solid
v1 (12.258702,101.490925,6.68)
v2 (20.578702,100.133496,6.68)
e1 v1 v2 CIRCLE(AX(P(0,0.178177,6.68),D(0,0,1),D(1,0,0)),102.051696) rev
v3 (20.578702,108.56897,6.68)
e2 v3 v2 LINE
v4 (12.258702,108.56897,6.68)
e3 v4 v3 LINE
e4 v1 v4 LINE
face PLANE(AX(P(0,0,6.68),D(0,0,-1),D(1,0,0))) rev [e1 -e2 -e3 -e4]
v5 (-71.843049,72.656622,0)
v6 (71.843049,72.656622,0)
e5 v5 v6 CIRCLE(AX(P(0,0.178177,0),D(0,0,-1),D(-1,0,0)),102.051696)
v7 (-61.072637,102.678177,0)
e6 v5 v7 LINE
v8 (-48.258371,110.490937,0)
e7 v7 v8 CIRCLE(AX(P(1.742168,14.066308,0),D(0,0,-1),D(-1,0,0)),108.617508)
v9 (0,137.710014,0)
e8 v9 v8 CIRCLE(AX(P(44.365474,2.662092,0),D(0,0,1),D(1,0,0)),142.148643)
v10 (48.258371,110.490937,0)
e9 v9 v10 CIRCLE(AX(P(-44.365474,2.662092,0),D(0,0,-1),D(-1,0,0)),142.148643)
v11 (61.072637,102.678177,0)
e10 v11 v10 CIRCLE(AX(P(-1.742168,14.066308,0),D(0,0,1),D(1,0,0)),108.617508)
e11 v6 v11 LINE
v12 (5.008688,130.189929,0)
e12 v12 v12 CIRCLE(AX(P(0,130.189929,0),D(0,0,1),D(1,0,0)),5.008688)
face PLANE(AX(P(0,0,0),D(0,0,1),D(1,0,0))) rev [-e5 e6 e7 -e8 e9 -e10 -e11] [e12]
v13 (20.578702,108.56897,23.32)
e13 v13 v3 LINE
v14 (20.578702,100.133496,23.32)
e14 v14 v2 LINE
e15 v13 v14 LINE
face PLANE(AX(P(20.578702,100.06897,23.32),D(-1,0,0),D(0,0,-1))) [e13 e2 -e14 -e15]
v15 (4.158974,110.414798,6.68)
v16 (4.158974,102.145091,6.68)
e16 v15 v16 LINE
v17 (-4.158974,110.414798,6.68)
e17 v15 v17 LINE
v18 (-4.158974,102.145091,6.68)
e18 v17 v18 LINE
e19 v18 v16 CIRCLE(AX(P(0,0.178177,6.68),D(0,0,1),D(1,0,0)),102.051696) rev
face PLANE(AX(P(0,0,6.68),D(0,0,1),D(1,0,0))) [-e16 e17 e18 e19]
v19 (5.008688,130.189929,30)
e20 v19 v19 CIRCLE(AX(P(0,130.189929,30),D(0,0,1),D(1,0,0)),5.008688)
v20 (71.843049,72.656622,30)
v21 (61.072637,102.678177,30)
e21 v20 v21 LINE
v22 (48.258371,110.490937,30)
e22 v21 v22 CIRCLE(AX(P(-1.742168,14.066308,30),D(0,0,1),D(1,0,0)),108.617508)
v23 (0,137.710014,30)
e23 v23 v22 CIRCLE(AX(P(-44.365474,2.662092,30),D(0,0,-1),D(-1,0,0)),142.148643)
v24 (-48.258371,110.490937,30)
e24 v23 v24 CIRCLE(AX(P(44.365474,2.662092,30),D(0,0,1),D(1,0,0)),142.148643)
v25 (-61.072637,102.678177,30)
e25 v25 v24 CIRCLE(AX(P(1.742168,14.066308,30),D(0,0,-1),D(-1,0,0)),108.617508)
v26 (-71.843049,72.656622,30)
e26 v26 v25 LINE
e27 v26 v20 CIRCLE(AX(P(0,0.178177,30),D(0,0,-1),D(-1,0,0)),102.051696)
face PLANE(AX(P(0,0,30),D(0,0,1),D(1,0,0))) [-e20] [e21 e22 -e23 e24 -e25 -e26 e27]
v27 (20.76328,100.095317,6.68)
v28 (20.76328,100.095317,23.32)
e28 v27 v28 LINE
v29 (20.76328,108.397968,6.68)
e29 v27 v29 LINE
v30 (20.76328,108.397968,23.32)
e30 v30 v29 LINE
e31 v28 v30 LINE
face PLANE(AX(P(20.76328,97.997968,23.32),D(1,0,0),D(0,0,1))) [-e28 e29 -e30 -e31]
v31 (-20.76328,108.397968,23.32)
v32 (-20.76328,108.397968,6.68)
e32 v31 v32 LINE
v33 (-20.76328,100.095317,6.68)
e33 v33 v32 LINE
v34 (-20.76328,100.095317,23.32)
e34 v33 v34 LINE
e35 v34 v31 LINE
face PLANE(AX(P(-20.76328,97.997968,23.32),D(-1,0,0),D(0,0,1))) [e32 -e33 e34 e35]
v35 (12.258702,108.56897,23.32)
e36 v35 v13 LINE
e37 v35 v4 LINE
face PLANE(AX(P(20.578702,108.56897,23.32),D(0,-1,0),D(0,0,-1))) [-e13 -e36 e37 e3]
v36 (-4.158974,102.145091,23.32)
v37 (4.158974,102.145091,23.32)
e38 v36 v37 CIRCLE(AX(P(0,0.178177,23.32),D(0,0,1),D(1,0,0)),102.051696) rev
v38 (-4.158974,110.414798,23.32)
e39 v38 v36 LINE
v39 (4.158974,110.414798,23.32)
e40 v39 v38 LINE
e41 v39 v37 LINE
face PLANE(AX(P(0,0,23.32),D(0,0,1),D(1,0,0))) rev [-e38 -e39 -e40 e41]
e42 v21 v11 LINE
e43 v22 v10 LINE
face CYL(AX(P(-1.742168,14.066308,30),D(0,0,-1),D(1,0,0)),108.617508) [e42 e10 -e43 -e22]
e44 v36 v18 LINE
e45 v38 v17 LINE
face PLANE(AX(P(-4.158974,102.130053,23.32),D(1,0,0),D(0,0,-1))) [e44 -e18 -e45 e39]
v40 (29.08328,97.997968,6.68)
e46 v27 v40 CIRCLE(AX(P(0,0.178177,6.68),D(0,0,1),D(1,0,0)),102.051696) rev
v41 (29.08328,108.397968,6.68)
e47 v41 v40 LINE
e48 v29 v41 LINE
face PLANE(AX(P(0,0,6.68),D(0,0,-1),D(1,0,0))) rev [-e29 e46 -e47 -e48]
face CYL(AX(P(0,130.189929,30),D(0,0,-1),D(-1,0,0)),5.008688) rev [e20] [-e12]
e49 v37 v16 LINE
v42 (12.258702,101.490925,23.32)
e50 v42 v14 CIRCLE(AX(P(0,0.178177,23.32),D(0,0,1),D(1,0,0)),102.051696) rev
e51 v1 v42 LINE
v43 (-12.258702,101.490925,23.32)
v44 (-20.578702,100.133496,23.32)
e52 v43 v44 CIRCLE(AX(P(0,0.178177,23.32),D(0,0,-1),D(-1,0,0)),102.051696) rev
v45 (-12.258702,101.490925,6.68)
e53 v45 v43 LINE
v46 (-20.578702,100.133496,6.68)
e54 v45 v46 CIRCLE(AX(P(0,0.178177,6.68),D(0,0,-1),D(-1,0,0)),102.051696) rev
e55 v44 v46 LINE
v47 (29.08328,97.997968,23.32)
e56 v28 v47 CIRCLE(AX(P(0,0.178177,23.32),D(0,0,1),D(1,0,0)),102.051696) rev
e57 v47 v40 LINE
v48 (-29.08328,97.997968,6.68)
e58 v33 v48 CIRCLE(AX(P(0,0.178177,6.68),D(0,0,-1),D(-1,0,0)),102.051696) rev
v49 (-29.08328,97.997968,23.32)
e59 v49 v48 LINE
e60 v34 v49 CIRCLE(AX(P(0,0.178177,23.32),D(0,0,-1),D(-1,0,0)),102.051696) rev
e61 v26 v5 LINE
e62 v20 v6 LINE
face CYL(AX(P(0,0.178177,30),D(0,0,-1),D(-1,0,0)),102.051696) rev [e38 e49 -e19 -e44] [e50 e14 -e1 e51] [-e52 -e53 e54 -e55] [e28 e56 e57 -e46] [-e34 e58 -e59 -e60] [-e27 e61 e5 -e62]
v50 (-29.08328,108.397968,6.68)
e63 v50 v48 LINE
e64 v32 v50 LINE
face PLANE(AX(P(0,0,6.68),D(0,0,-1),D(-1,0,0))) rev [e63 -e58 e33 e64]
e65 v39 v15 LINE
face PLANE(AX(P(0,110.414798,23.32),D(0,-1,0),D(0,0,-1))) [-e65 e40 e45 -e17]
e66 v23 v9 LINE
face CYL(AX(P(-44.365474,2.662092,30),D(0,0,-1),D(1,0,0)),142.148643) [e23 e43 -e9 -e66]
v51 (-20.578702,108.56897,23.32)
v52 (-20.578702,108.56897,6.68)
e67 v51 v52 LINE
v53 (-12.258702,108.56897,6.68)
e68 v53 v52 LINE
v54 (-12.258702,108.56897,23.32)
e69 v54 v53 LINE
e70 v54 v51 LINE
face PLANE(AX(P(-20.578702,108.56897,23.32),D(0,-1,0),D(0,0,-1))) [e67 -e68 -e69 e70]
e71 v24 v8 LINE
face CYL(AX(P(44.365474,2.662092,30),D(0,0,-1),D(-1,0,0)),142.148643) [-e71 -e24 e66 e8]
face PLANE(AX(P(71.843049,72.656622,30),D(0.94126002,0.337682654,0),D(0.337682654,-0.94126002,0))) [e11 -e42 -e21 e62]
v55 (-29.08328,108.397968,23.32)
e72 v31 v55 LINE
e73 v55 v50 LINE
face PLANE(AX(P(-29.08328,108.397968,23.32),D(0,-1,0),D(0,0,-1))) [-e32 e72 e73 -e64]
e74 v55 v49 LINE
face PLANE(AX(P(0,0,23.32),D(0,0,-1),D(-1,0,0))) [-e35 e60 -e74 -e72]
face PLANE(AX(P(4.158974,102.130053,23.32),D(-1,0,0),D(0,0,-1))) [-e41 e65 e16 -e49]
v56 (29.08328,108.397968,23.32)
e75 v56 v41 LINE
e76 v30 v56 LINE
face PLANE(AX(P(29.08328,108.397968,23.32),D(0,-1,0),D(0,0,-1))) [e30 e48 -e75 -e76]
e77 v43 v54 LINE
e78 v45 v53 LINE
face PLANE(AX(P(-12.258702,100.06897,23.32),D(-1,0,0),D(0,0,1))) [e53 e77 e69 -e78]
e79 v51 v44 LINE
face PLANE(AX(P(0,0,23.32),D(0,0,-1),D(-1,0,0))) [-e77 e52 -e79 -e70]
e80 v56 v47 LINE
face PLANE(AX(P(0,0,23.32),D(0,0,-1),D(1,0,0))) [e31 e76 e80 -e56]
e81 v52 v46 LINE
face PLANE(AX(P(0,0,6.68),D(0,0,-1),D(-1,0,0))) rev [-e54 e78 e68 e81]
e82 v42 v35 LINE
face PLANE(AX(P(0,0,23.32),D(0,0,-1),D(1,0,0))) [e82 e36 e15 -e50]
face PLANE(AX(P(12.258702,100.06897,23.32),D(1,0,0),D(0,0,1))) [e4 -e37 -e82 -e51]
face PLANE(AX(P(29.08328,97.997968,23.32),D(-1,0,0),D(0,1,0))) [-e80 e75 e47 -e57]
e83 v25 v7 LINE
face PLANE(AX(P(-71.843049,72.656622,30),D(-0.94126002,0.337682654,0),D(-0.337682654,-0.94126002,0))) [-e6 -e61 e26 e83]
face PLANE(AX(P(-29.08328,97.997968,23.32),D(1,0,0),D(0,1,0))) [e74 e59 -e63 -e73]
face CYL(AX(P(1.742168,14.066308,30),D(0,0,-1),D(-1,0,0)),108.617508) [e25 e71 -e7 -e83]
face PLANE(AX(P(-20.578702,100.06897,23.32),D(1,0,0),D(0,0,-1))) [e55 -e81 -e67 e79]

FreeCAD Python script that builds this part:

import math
import FreeCAD as App
import Part
import Sketcher
from FreeCAD import Vector
Q = App.Units.Quantity

doc = App.newDocument("Part")
body = doc.addObject("PartDesign::Body", "Body")

# Sketch on XY plane
sketch1 = body.newObject("Sketcher::SketchObject", "Sketch")
sketch1.AttachmentSupport = (doc.getObject("XY_Plane"), [""])
sketch1.MapMode = "FlatFace"
sketch1.addGeometry([
    Part.LineSegment(Vector(-61.1, 102.7, 0), Vector(-71.8, 72.7, 0)),  # 0
    Part.ArcOfCircle(Part.Circle(Vector(0, 0.2, 0), Vector(0, 0, 1), 102.1), math.radians(90), math.radians(135)),  # 1
    Part.LineSegment(Vector(0, 102.2, 0), Vector(0, 125.2, 0)),  # 2
    Part.ArcOfCircle(Part.Circle(Vector(0, 130.2, 0), Vector(0, 0, 1), 5), math.radians(90), math.radians(270)),  # 3
    Part.LineSegment(Vector(0, 135.2, 0), Vector(0, 137.7, 0)),  # 4
    Part.ArcOfCircle(Part.Circle(Vector(44.4, 2.7, 0), Vector(0, 0, 1), 142.1), math.radians(108), math.radians(131)),  # 5
    Part.ArcOfCircle(Part.Circle(Vector(1.7, 14.1, 0), Vector(0, 0, 1), 108.6), math.radians(117.41), math.radians(125.33)),  # 6
], False)
sketch1.addConstraint([
    Sketcher.Constraint("Coincident", 0, 2, 1, 2),
    Sketcher.Constraint("Coincident", 1, 1, 2, 1),
    Sketcher.Constraint("Coincident", 2, 2, 3, 2),
    Sketcher.Constraint("Coincident", 3, 1, 4, 1),
    Sketcher.Constraint("Coincident", 4, 2, 5, 1),
    Sketcher.Constraint("Coincident", 5, 2, 6, 1),
    Sketcher.Constraint("Coincident", 6, 2, 0, 1),
    Sketcher.Constraint("Vertical", 2),
    Sketcher.Constraint("Vertical", 4),
    Sketcher.Constraint("PointOnObject", 1, 3, -2),
    Sketcher.Constraint("PointOnObject", 3, 3, -2),
    Sketcher.Constraint("PointOnObject", 1, 1, -2),
    Sketcher.Constraint("PointOnObject", 3, 1, -2),
    Sketcher.Constraint("Radius", 6, Q("108.617508 mm")),
    Sketcher.Constraint("Radius", 1, Q("102.051696 mm")),
    Sketcher.Constraint("Radius", 3, Q("5.008688 mm")),
    Sketcher.Constraint("Radius", 5, Q("142.148643 mm")),
    Sketcher.Constraint("DistanceY", 2, 1, 2, 2, Q("22.951368 mm")),
    Sketcher.Constraint("Distance", 0, Q("31.895071 mm")),
    Sketcher.Constraint("DistanceY", 4, 1, 4, 2, Q("2.511398 mm")),
    Sketcher.Constraint("DistanceY", -1, 1, 3, 3, Q("130.189929 mm")),
    Sketcher.Constraint("DistanceY", -1, 1, 5, 3, Q("2.662092 mm")),
    Sketcher.Constraint("DistanceX", 0, 2, -1, 1, Q("71.843049 mm")),
    Sketcher.Constraint("DistanceX", 5, 2, -1, 1, Q("48.258371 mm")),
    Sketcher.Constraint("DistanceY", 1, 3, 6, 3, Q("13.888131 mm")),
])
pad1 = body.newObject("PartDesign::Pad", "Pad")
pad1.Profile = sketch1
pad1.Length = 30

# Sketch on XY plane
sketch2 = body.newObject("Sketcher::SketchObject", "Sketch001")
sketch2.AttachmentSupport = (doc.getObject("XY_Plane"), [""])
sketch2.MapMode = "FlatFace"
sketch2.AttachmentOffset = App.Placement(Vector(0, 0, 15), App.Rotation())
sketch2.addGeometry([
    Part.LineSegment(Vector(-20.6, 108.6, 0), Vector(-20.6, 100.1, 0)),  # 0
    Part.LineSegment(Vector(-20.6, 100.1, 0), Vector(-12.3, 100.1, 0)),  # 1
    Part.LineSegment(Vector(-12.3, 100.1, 0), Vector(-12.3, 108.6, 0)),  # 2
    Part.LineSegment(Vector(-12.3, 108.6, 0), Vector(-20.6, 108.6, 0)),  # 3
    Part.LineSegment(Vector(-29.1, 108.4, 0), Vector(-29.1, 98, 0)),  # 4
    Part.LineSegment(Vector(-29.1, 98, 0), Vector(-20.8, 98, 0)),  # 5
    Part.LineSegment(Vector(-20.8, 98, 0), Vector(-20.8, 108.4, 0)),  # 6
    Part.LineSegment(Vector(-20.8, 108.4, 0), Vector(-29.1, 108.4, 0)),  # 7
    Part.LineSegment(Vector(-4.2, 110.4, 0), Vector(-4.2, 102.1, 0)),  # 8
    Part.LineSegment(Vector(-4.2, 102.1, 0), Vector(0, 102.1, 0)),  # 9
    Part.LineSegment(Vector(0, 102.1, 0), Vector(0, 110.4, 0)),  # 10
    Part.LineSegment(Vector(0, 110.4, 0), Vector(-4.2, 110.4, 0)),  # 11
], False)
sketch2.addConstraint([
    Sketcher.Constraint("Coincident", 0, 2, 1, 1),
    Sketcher.Constraint("Coincident", 1, 2, 2, 1),
    Sketcher.Constraint("Coincident", 2, 2, 3, 1),
    Sketcher.Constraint("Coincident", 3, 2, 0, 1),
    Sketcher.Constraint("Coincident", 4, 2, 5, 1),
    Sketcher.Constraint("Coincident", 5, 2, 6, 1),
    Sketcher.Constraint("Coincident", 6, 2, 7, 1),
    Sketcher.Constraint("Coincident", 7, 2, 4, 1),
    Sketcher.Constraint("Coincident", 8, 2, 9, 1),
    Sketcher.Constraint("Coincident", 9, 2, 10, 1),
    Sketcher.Constraint("Coincident", 10, 2, 11, 1),
    Sketcher.Constraint("Coincident", 11, 2, 8, 1),
    Sketcher.Constraint("Vertical", 0),
    Sketcher.Constraint("Horizontal", 1),
    Sketcher.Constraint("Vertical", 2),
    Sketcher.Constraint("Horizontal", 3),
    Sketcher.Constraint("Vertical", 4),
    Sketcher.Constraint("Horizontal", 5),
    Sketcher.Constraint("Vertical", 6),
    Sketcher.Constraint("Horizontal", 7),
    Sketcher.Constraint("Vertical", 8),
    Sketcher.Constraint("Horizontal", 9),
    Sketcher.Constraint("Vertical", 10),
    Sketcher.Constraint("Horizontal", 11),
    Sketcher.Constraint("PointOnObject", 9, 2, -2),
    Sketcher.Constraint("Equal", 3, 5),
    Sketcher.Constraint("DistanceY", 0, 2, 0, 1, Q("8.5 mm")),
    Sketcher.Constraint("DistanceY", 4, 2, 4, 1, Q("10.4 mm")),
    Sketcher.Constraint("DistanceX", 1, 1, 1, 2, Q("8.32 mm")),
    Sketcher.Constraint("DistanceX", 0, 2, -1, 1, Q("20.578702 mm")),
    Sketcher.Constraint("DistanceX", 9, 1, 9, 2, Q("4.158974 mm")),
    Sketcher.Constraint("DistanceY", 8, 2, 8, 1, Q("8.284744 mm")),
    Sketcher.Constraint("DistanceY", -1, 1, 0, 2, Q("100.06897 mm")),
    Sketcher.Constraint("DistanceX", 4, 2, -1, 1, Q("29.08328 mm")),
    Sketcher.Constraint("DistanceY", -1, 1, 4, 2, Q("97.997968 mm")),
    Sketcher.Constraint("DistanceY", -1, 1, 8, 2, Q("102.130053 mm")),
])
pocket1 = body.newObject("PartDesign::Pocket", "Pocket")
pocket1.Profile = sketch2
pocket1.Type = "TwoLengths"
pocket1.Length = 8.32
pocket1.Length2 = 8.32
pocket1.Reversed = True
body2 = doc.addObject("PartDesign::Body", "Body001")
doc.recompute()

body2.BaseFeature = body
doc.recompute()

mirroring = doc.addObject("Part::Mirroring", "Mirroring")
mirroring.Source = body
mirroring.Base = Vector(0, 0, 30)
mirroring.Normal = Vector(-1, 0, 0)
body3 = doc.addObject("PartDesign::Body", "Body002")
body3.BaseFeature = mirroring
boolean = body2.newObject("PartDesign::Boolean", "Boolean")
boolean.Type = "Fuse"
boolean.addObjects([body3])
doc.recompute()
mirroring.Visibility = False

doc.recompute()
